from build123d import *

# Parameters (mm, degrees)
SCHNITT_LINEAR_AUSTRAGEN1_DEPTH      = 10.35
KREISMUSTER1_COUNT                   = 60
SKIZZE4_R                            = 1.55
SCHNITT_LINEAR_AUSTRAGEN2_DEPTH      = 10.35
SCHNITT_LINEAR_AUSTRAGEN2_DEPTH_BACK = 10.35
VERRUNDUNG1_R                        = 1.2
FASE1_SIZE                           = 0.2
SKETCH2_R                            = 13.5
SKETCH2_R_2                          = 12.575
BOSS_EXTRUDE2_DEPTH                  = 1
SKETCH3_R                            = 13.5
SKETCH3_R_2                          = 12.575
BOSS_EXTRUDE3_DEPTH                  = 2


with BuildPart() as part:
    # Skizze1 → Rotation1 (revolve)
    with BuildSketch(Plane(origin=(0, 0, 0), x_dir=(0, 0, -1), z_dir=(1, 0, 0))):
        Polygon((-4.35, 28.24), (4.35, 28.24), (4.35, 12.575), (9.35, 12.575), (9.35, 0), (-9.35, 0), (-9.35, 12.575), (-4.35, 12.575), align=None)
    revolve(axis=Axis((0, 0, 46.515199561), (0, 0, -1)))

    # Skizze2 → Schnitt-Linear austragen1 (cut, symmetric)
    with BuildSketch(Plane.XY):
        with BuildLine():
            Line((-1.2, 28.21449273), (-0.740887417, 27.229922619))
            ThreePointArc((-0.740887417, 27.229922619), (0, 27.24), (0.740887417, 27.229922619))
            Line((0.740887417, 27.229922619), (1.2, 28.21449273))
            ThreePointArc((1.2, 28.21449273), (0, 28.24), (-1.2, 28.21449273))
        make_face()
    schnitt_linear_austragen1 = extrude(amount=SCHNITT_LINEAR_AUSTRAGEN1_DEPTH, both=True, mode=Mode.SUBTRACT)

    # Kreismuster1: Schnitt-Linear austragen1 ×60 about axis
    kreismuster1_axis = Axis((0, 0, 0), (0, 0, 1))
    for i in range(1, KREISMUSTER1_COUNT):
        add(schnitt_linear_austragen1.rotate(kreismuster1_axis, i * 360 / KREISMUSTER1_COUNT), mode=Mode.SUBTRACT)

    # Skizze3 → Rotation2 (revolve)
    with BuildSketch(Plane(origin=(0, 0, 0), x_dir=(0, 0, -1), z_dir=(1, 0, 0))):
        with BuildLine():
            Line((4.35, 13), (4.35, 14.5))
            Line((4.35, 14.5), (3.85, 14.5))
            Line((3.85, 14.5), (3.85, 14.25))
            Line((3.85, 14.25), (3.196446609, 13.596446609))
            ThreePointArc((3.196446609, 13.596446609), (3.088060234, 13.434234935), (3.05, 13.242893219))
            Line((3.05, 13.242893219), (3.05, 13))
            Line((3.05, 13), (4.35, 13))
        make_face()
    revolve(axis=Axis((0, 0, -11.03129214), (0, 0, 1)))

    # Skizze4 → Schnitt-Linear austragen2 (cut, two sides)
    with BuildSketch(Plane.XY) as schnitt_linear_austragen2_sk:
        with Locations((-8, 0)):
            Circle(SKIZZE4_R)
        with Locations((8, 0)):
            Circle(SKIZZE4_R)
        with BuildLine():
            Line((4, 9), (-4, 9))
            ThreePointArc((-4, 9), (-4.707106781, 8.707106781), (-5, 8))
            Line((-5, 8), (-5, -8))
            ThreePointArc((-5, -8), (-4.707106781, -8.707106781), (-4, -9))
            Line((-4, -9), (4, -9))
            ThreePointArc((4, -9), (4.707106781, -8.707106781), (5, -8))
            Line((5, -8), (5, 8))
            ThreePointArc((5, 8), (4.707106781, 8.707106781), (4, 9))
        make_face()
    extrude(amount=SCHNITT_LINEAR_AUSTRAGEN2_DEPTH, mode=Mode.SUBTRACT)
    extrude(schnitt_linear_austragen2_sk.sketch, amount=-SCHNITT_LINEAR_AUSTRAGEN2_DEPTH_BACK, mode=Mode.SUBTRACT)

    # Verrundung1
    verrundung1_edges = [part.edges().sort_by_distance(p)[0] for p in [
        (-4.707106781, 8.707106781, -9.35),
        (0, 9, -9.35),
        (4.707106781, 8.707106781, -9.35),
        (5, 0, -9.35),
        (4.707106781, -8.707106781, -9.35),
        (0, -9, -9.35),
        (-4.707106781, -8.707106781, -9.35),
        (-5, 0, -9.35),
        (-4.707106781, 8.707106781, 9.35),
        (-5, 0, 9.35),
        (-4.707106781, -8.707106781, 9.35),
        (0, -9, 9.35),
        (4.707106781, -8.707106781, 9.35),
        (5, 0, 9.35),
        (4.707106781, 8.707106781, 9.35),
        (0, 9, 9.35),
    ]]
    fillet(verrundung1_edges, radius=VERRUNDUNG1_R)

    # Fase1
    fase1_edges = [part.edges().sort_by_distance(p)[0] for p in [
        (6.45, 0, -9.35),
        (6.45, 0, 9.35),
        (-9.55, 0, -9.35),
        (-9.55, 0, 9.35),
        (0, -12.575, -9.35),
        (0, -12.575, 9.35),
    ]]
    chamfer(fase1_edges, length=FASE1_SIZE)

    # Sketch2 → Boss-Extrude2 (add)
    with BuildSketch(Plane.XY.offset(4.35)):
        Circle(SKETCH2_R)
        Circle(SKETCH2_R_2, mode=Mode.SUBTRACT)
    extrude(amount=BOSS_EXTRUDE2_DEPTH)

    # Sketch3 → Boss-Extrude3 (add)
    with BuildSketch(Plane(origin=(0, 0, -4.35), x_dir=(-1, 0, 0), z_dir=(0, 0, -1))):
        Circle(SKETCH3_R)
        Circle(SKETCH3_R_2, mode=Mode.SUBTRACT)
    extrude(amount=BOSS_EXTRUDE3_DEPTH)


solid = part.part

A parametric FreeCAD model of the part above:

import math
import FreeCAD as App
import Part
import Sketcher
Q = App.Units.Quantity


def edges_at(feature, points):
    """Names of the edges that pass closest to the given points."""
    edges = feature.Shape.Edges
    near = lambda p: min(range(len(edges)), key=lambda i: edges[i].distToShape(Part.Vertex(*p))[0])
    return sorted({f"Edge{near(p) + 1}" for p in points})

doc = App.newDocument("Part")
params = doc.addObject("Spreadsheet::Sheet", "Params")
for row, (alias, value) in enumerate([
    ("sketch1_height", "5 mm"),
    ("sketch1_height2", "8.7 mm"),
    ("revolution_angle", "360 deg"),
    ("sketch2_radius", "27.24 mm"),
    ("sketch2_radius2", "28.24 mm"),
    ("pocket1_length", "20.7 mm"),
    ("sketch3_radius", "0.5 mm"),
    ("sketch3_width", "1.5 mm"),
    ("sketch3_height", "0.5 mm"),
    ("sketch3_height2", "1.3 mm"),
    ("sketch3_width2", "0.25 mm"),
    ("revolution2_angle", "360 deg"),
    ("sketch4_radius", "1 mm"),
    ("sketch4_diameter", "3.1 mm"),
    ("sketch4_width", "8 mm"),
    ("sketch4_height", "16 mm"),
    ("fillet_radius", "1.2 mm"),
    ("chamfer_size", "0.2 mm"),
    ("sketch5_diameter", "27 mm"),
    ("sketch5_diameter2", "25.15 mm"),
    ("pad1_length", "1 mm"),
    ("sketch6_diameter", "27 mm"),
    ("sketch6_diameter2", "25.15 mm"),
    ("pad2_length", "2 mm"),
], start=1):
    params.set(f"A{row}", alias)
    params.set(f"B{row}", "=" + value)
    params.setAlias(f"B{row}", alias)

body = doc.addObject("PartDesign::Body", "Body")

sketch1 = body.newObject("Sketcher::SketchObject", "Sketch")
sketch1.AttachmentSupport = (doc.getObject("YZ_Plane"), [""])
sketch1.MapMode = "FlatFace"
sketch1.addGeometry([
    Part.LineSegment(App.Vector(28.24, -4.35, 0), App.Vector(28.24, 4.35, 0)),
    Part.LineSegment(App.Vector(28.24, 4.35, 0), App.Vector(12.575, 4.35, 0)),
    Part.LineSegment(App.Vector(12.575, 4.35, 0), App.Vector(12.575, 9.35, 0)),
    Part.LineSegment(App.Vector(12.575, 9.35, 0), App.Vector(0, 9.35, 0)),
    Part.LineSegment(App.Vector(0, 9.35, 0), App.Vector(0, -9.35, 0)),
    Part.LineSegment(App.Vector(0, -9.35, 0), App.Vector(12.575, -9.35, 0)),
    Part.LineSegment(App.Vector(12.575, -9.35, 0), App.Vector(12.575, -4.35, 0)),
    Part.LineSegment(App.Vector(12.575, -4.35, 0), App.Vector(28.24, -4.35, 0)),
], False)
sketch1.addConstraint([
    Sketcher.Constraint("Coincident", 0, 2, 1, 1),
    Sketcher.Constraint("Coincident", 1, 2, 2, 1),
    Sketcher.Constraint("Coincident", 2, 2, 3, 1),
    Sketcher.Constraint("Coincident", 3, 2, 4, 1),
    Sketcher.Constraint("Coincident", 4, 2, 5, 1),
    Sketcher.Constraint("Coincident", 5, 2, 6, 1),
    Sketcher.Constraint("Coincident", 6, 2, 7, 1),
    Sketcher.Constraint("Coincident", 7, 2, 0, 1),
    Sketcher.Constraint("Vertical", 0),
    Sketcher.Constraint("Horizontal", 1),
    Sketcher.Constraint("Vertical", 2),
    Sketcher.Constraint("Horizontal", 3),
    Sketcher.Constraint("Vertical", 4),
    Sketcher.Constraint("Horizontal", 5),
    Sketcher.Constraint("Vertical", 6),
    Sketcher.Constraint("Horizontal", 7),
    Sketcher.Constraint("Symmetric", 3, 2, 4, 2, -1, 1),
    Sketcher.Constraint("Symmetric", 1, 2, 6, 2, -1),
    Sketcher.Constraint("DistanceY", 2, 1, 2, 2, 5.0),
    Sketcher.Constraint("DistanceY", 0, 1, 0, 2, 8.7),
    Sketcher.Constraint("DistanceX", 1, 2, 1, 1, 15.665),
    Sketcher.Constraint("DistanceX", 3, 2, 3, 1, 12.575),
])
sketch1.setExpression("Constraints[18]", "Params.sketch1_height")
sketch1.setExpression("Constraints[19]", "Params.sketch1_height2")
revolution = body.newObject("PartDesign::Revolution", "Revolution")
revolution.Profile = sketch1
revolution.ReferenceAxis = (sketch1, ["V_Axis"])
revolution.setExpression("Angle", "Params.revolution_angle")

sketch2 = body.newObject("Sketcher::SketchObject", "Sketch001")
sketch2.AttachmentSupport = (doc.getObject("XY_Plane"), [""])
sketch2.MapMode = "FlatFace"
sketch2.addGeometry([
    Part.LineSegment(App.Vector(-1.2, 28.214493, 0), App.Vector(-0.740887, 27.229923, 0)),
    Part.ArcOfCircle(Part.Circle(App.Vector(0, 0, 0), App.Vector(0, 0, 1), 27.24), math.radians(88.441448), math.radians(91.558552)),
    Part.LineSegment(App.Vector(0.740887, 27.229923, 0), App.Vector(1.2, 28.214493, 0)),
    Part.ArcOfCircle(Part.Circle(App.Vector(0, 0, 0), App.Vector(0, 0, 1), 28.24), math.radians(87.564602), math.radians(92.435398)),
], False)
sketch2.addConstraint([
    Sketcher.Constraint("Coincident", 0, 2, 1, 2),
    Sketcher.Constraint("Coincident", 1, 1, 2, 1),
    Sketcher.Constraint("Coincident", 2, 2, 3, 1),
    Sketcher.Constraint("Coincident", 3, 2, 0, 1),
    Sketcher.Constraint("Coincident", 1, 3, -1, 1),
    Sketcher.Constraint("Coincident", 3, 3, -1, 1),
    Sketcher.Constraint("Horizontal", 0, 2, 1, 1),
    Sketcher.Constraint("Horizontal", 2, 2, 3, 2),
    Sketcher.Constraint("Angle", 0, Q("-65 deg")),
    Sketcher.Constraint("Radius", 1, 27.24),
    Sketcher.Constraint("Radius", 3, 28.24),
    Sketcher.Constraint("DistanceX", -1, 1, 2, 2, 1.2),
])
sketch2.setExpression("Constraints[9]", "Params.sketch2_radius")
sketch2.setExpression("Constraints[10]", "Params.sketch2_radius2")
pocket1 = body.newObject("PartDesign::Pocket", "Pocket")
pocket1.Profile = sketch2
pocket1.setExpression("Length", "Params.pocket1_length")
pocket1.Midplane = True
doc.recompute()

polarpattern = body.newObject("PartDesign::PolarPattern", "PolarPattern")
polarpattern.Originals = [pocket1]
polarpattern.Axis = (doc.getObject("Z_Axis"), [""])
polarpattern.Angle = 360
polarpattern.Occurrences = 60
body.Tip = polarpattern

sketch3 = body.newObject("Sketcher::SketchObject", "Sketch002")
sketch3.AttachmentSupport = (doc.getObject("YZ_Plane"), [""])
sketch3.MapMode = "FlatFace"
sketch3.addGeometry([
    Part.LineSegment(App.Vector(13, -4.35, 0), App.Vector(14.5, -4.35, 0)),
    Part.LineSegment(App.Vector(14.5, -4.35, 0), App.Vector(14.5, -3.85, 0)),
    Part.LineSegment(App.Vector(14.5, -3.85, 0), App.Vector(14.25, -3.85, 0)),
    Part.LineSegment(App.Vector(14.25, -3.85, 0), App.Vector(13.596447, -3.196447, 0)),
    Part.ArcOfCircle(Part.Circle(App.Vector(13.242893, -3.55, 0), App.Vector(0, 0, 1), 0.5), math.radians(45), math.radians(90)),
    Part.LineSegment(App.Vector(13.242893, -3.05, 0), App.Vector(13, -3.05, 0)),
    Part.LineSegment(App.Vector(13, -3.05, 0), App.Vector(13, -4.35, 0)),
], False)
sketch3.addConstraint([
    Sketcher.Constraint("Coincident", 0, 2, 1, 1),
    Sketcher.Constraint("Coincident", 1, 2, 2, 1),
    Sketcher.Constraint("Coincident", 2, 2, 3, 1),
    Sketcher.Constraint("Tangent", 3, 2, 4, 1),
    Sketcher.Constraint("Tangent", 4, 2, 5, 1),
    Sketcher.Constraint("Coincident", 5, 2, 6, 1),
    Sketcher.Constraint("Coincident", 6, 2, 0, 1),
    Sketcher.Constraint("Horizontal", 0),
    Sketcher.Constraint("Vertical", 1),
    Sketcher.Constraint("Horizontal", 2),
    Sketcher.Constraint("Horizontal", 5),
    Sketcher.Constraint("Vertical", 6),
    Sketcher.Constraint("Radius", 4, 0.5),
    Sketcher.Constraint("Angle", 3, Q("135 deg")),
    Sketcher.Constraint("DistanceX", 0, 1, 0, 2, 1.5),
    Sketcher.Constraint("DistanceY", 1, 1, 1, 2, 0.5),
    Sketcher.Constraint("DistanceY", 6, 2, 6, 1, 1.3),
    Sketcher.Constraint("DistanceX", -1, 1, 5, 2, 13.0),
    Sketcher.Constraint("DistanceX", 2, 2, 2, 1, 0.25),
    Sketcher.Constraint("DistanceY", 4, 3, -1, 1, 3.55),
])
sketch3.setExpression("Constraints[12]", "Params.sketch3_radius")
sketch3.setExpression("Constraints[14]", "Params.sketch3_width")
sketch3.setExpression("Constraints[15]", "Params.sketch3_height")
sketch3.setExpression("Constraints[16]", "Params.sketch3_height2")
sketch3.setExpression("Constraints[18]", "Params.sketch3_width2")
revolution2 = body.newObject("PartDesign::Revolution", "Revolution001")
revolution2.Profile = sketch3
revolution2.ReferenceAxis = (sketch3, ["V_Axis"])
revolution2.setExpression("Angle", "Params.revolution2_angle")

sketch4 = body.newObject("Sketcher::SketchObject", "Sketch003")
sketch4.AttachmentSupport = (doc.getObject("XY_Plane"), [""])
sketch4.MapMode = "FlatFace"
sketch4.addGeometry([
    Part.Circle(App.Vector(-8, 0, 0), App.Vector(0, 0, 1), 1.55),
    Part.Circle(App.Vector(8, 0, 0), App.Vector(0, 0, 1), 1.55),
    Part.LineSegment(App.Vector(4, 9, 0), App.Vector(-4, 9, 0)),
    Part.ArcOfCircle(Part.Circle(App.Vector(-4, 8, 0), App.Vector(0, 0, 1), 1), math.radians(90), math.radians(180)),
    Part.LineSegment(App.Vector(-5, 8, 0), App.Vector(-5, -8, 0)),
    Part.ArcOfCircle(Part.Circle(App.Vector(-4, -8, 0), App.Vector(0, 0, 1), 1), math.radians(-180), math.radians(-90)),
    Part.LineSegment(App.Vector(-4, -9, 0), App.Vector(4, -9, 0)),
    Part.ArcOfCircle(Part.Circle(App.Vector(4, -8, 0), App.Vector(0, 0, 1), 1), math.radians(-90), math.radians(0)),
    Part.LineSegment(App.Vector(5, -8, 0), App.Vector(5, 8, 0)),
    Part.ArcOfCircle(Part.Circle(App.Vector(4, 8, 0), App.Vector(0, 0, 1), 1), math.radians(0), math.radians(90)),
], False)
sketch4.addConstraint([
    Sketcher.Constraint("Tangent", 2, 2, 3, 1),
    Sketcher.Constraint("Tangent", 3, 2, 4, 1),
    Sketcher.Constraint("Tangent", 4, 2, 5, 1),
    Sketcher.Constraint("Tangent", 5, 2, 6, 1),
    Sketcher.Constraint("Tangent", 6, 2, 7, 1),
    Sketcher.Constraint("Tangent", 7, 2, 8, 1),
    Sketcher.Constraint("Tangent", 8, 2, 9, 1),
    Sketcher.Constraint("Tangent", 9, 2, 2, 1),
    Sketcher.Constraint("Horizontal", 2),
    Sketcher.Constraint("Vertical", 4),
    Sketcher.Constraint("Horizontal", 6),
    Sketcher.Constraint("Vertical", 8),
    Sketcher.Constraint("Equal", 0, 1),
    Sketcher.Constraint("Equal", 3, 5),
    Sketcher.Constraint("Equal", 5, 7),
    Sketcher.Constraint("Equal", 7, 9),
    Sketcher.Constraint("Symmetric", 0, 3, 1, 3, -1, 1),
    Sketcher.Constraint("Symmetric", 3, 3, 7, 3, -1, 1),
    Sketcher.Constraint("PointOnObject", 0, 3, -1),
    Sketcher.Constraint("Radius", 3, 1.0),
    Sketcher.Constraint("Diameter", 0, 3.1),
    Sketcher.Constraint("DistanceX", 2, 2, 2, 1, 8.0),
    Sketcher.Constraint("DistanceY", 4, 2, 4, 1, 16.0),
    Sketcher.Constraint("DistanceX", 0, 3, -1, 1, 8.0),
])
sketch4.setExpression("Constraints[19]", "Params.sketch4_radius")
sketch4.setExpression("Constraints[20]", "Params.sketch4_diameter")
sketch4.setExpression("Constraints[21]", "Params.sketch4_width")
sketch4.setExpression("Constraints[22]", "Params.sketch4_height")
pocket2 = body.newObject("PartDesign::Pocket", "Pocket001")
pocket2.Profile = sketch4
pocket2.Type = "ThroughAll"
pocket2.Midplane = True
doc.recompute()

fillet = body.newObject("PartDesign::Fillet", "Fillet")
fillet.Base = (pocket2, edges_at(pocket2, [
    (-4.707, 8.707, -9.35),
    (0, 9, -9.35),
    (4.707, 8.707, -9.35),
    (5, 0, -9.35),
    (4.707, -8.707, -9.35),
    (0, -9, -9.35),
    (-4.707, -8.707, -9.35),
    (-5, 0, -9.35),
    (-4.707, 8.707, 9.35),
    (-5, 0, 9.35),
    (-4.707, -8.707, 9.35),
    (0, -9, 9.35),
    (4.707, -8.707, 9.35),
    (5, 0, 9.35),
    (4.707, 8.707, 9.35),
    (0, 9, 9.35),
]))
fillet.setExpression("Radius", "Params.fillet_radius")
doc.recompute()

chamfer = body.newObject("PartDesign::Chamfer", "Chamfer")
chamfer.Base = (fillet, edges_at(fillet, [
    (6.45, 0, -9.35),
    (6.45, 0, 9.35),
    (-9.55, 0, -9.35),
    (-9.55, 0, 9.35),
    (0, -12.575, -9.35),
    (0, -12.575, 9.35),
]))
chamfer.setExpression("Size", "Params.chamfer_size")

sketch5 = body.newObject("Sketcher::SketchObject", "Sketch004")
sketch5.AttachmentSupport = (doc.getObject("XY_Plane"), [""])
sketch5.MapMode = "FlatFace"
sketch5.AttachmentOffset = App.Placement(App.Vector(0, 0, 4.35), App.Rotation())
sketch5.addGeometry([
    Part.Circle(App.Vector(0, 0, 0), App.Vector(0, 0, 1), 13.5),
    Part.Circle(App.Vector(0, 0, 0), App.Vector(0, 0, 1), 12.575),
], False)
sketch5.addConstraint([
    Sketcher.Constraint("Coincident", 0, 3, -1, 1),
    Sketcher.Constraint("Coincident", 1, 3, -1, 1),
    Sketcher.Constraint("Diameter", 0, 27.0),
    Sketcher.Constraint("Diameter", 1, 25.15),
])
sketch5.setExpression("Constraints[2]", "Params.sketch5_diameter")
sketch5.setExpression("Constraints[3]", "Params.sketch5_diameter2")
pad1 = body.newObject("PartDesign::Pad", "Pad")
pad1.Profile = sketch5
pad1.setExpression("Length", "Params.pad1_length")

sketch6 = body.newObject("Sketcher::SketchObject", "Sketch005")
sketch6.AttachmentSupport = (doc.getObject("XY_Plane"), [""])
sketch6.MapMode = "FlatFace"
sketch6.AttachmentOffset = App.Placement(App.Vector(0, 0, -4.35), App.Rotation())
sketch6.addGeometry([
    Part.Circle(App.Vector(0, 0, 0), App.Vector(0, 0, 1), 13.5),
    Part.Circle(App.Vector(0, 0, 0), App.Vector(0, 0, 1), 12.575),
], False)
sketch6.addConstraint([
    Sketcher.Constraint("Coincident", 0, 3, -1, 1),
    Sketcher.Constraint("Coincident", 1, 3, -1, 1),
    Sketcher.Constraint("Diameter", 0, 27.0),
    Sketcher.Constraint("Diameter", 1, 25.15),
])
sketch6.setExpression("Constraints[2]", "Params.sketch6_diameter")
sketch6.setExpression("Constraints[3]", "Params.sketch6_diameter2")
pad2 = body.newObject("PartDesign::Pad", "Pad001")
pad2.Profile = sketch6
pad2.setExpression("Length", "Params.pad2_length")
pad2.Reversed = True

doc.recompute()
